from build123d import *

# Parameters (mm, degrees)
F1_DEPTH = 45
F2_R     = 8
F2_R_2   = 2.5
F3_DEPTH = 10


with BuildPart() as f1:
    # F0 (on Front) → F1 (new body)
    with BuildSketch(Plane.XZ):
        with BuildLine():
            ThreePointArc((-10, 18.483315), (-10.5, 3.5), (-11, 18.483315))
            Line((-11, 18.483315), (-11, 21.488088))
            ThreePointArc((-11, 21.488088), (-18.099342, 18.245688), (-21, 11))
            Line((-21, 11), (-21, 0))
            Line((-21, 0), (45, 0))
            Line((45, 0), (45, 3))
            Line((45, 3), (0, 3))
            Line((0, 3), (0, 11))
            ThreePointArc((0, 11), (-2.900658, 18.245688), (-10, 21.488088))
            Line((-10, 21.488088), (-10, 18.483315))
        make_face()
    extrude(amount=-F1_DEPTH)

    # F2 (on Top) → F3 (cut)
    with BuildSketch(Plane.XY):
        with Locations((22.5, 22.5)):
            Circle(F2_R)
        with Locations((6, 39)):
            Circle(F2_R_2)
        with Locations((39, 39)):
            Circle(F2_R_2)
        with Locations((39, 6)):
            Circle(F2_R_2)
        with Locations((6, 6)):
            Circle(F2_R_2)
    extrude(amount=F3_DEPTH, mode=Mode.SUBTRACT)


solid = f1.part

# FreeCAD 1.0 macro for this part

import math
import FreeCAD as App
import Part
import Sketcher
Q = App.Units.Quantity

doc = App.newDocument("Part")
body = doc.addObject("PartDesign::Body", "Body")

# Sketch on XZ plane
sketch1 = body.newObject("Sketcher::SketchObject", "Sketch")
sketch1.AttachmentSupport = (doc.getObject("XZ_Plane"), [""])
sketch1.MapMode = "FlatFace"
sketch1.addGeometry([
    Part.ArcOfCircle(Part.Circle(App.Vector(-10.5, 11, 0), App.Vector(0, 0, 1), 7.5), math.radians(94), math.radians(446)),  # 0
    Part.LineSegment(App.Vector(-11, 18.5, 0), App.Vector(-11, 21.5, 0)),  # 1
    Part.ArcOfCircle(Part.Circle(App.Vector(-10.5, 11, 0), App.Vector(0, 0, 1), 10.5), math.radians(93), math.radians(180)),  # 2
    Part.LineSegment(App.Vector(-21, 11, 0), App.Vector(-21, 0, 0)),  # 3
    Part.LineSegment(App.Vector(-21, 0, 0), App.Vector(45, 0, 0)),  # 4
    Part.LineSegment(App.Vector(45, 0, 0), App.Vector(45, 3, 0)),  # 5
    Part.LineSegment(App.Vector(45, 3, 0), App.Vector(0, 3, 0)),  # 6
    Part.LineSegment(App.Vector(0, 3, 0), App.Vector(0, 11, 0)),  # 7
    Part.ArcOfCircle(Part.Circle(App.Vector(-10.5, 11, 0), App.Vector(0, 0, 1), 10.5), math.radians(0), math.radians(87)),  # 8
    Part.LineSegment(App.Vector(-10, 21.5, 0), App.Vector(-10, 18.5, 0)),  # 9
], False)
sketch1.addConstraint([
    Sketcher.Constraint("Coincident", 0, 1, 1, 1),
    Sketcher.Constraint("Coincident", 1, 2, 2, 1),
    Sketcher.Constraint("Tangent", 2, 2, 3, 1),
    Sketcher.Constraint("Coincident", 3, 2, 4, 1),
    Sketcher.Constraint("Coincident", 4, 2, 5, 1),
    Sketcher.Constraint("Coincident", 5, 2, 6, 1),
    Sketcher.Constraint("Coincident", 6, 2, 7, 1),
    Sketcher.Constraint("Tangent", 7, 2, 8, 1),
    Sketcher.Constraint("Coincident", 8, 2, 9, 1),
    Sketcher.Constraint("Coincident", 9, 2, 0, 2),
    Sketcher.Constraint("Vertical", 1),
    Sketcher.Constraint("Vertical", 3),
    Sketcher.Constraint("Horizontal", 4),
    Sketcher.Constraint("Vertical", 5),
    Sketcher.Constraint("Horizontal", 6),
    Sketcher.Constraint("Vertical", 7),
    Sketcher.Constraint("Vertical", 9),
    Sketcher.Constraint("Coincident", 2, 3, 0, 3),
    Sketcher.Constraint("Coincident", 8, 3, 0, 3),
    Sketcher.Constraint("Equal", 2, 8),
    Sketcher.Constraint("PointOnObject", 3, 2, -1),
    Sketcher.Constraint("PointOnObject", 6, 2, -2),
    Sketcher.Constraint("Horizontal", 1, 2, 8, 2),
    Sketcher.Constraint("Radius", 0, Q("7.5 mm")),
    Sketcher.Constraint("Radius", 2, Q("10.5 mm")),
    Sketcher.Constraint("DistanceX", 4, 1, 4, 2, Q("66 mm")),
    Sketcher.Constraint("DistanceY", 3, 2, 3, 1, Q("11 mm")),
    Sketcher.Constraint("DistanceY", 5, 1, 5, 2, Q("3 mm")),
    Sketcher.Constraint("DistanceX", 0, 1, -1, 1, Q("11 mm")),
])
pad1 = body.newObject("PartDesign::Pad", "Pad")
pad1.Profile = sketch1
pad1.Length = 45
pad1.Reversed = True

# Sketch on XY plane
sketch2 = body.newObject("Sketcher::SketchObject", "Sketch001")
sketch2.AttachmentSupport = (doc.getObject("XY_Plane"), [""])
sketch2.MapMode = "FlatFace"
sketch2.addGeometry([
    Part.Circle(App.Vector(22.5, 22.5, 0), App.Vector(0, 0, 1), 8),  # 0
    Part.Circle(App.Vector(6, 39, 0), App.Vector(0, 0, 1), 2.5),  # 1
    Part.Circle(App.Vector(39, 39, 0), App.Vector(0, 0, 1), 2.5),  # 2
    Part.Circle(App.Vector(39, 6, 0), App.Vector(0, 0, 1), 2.5),  # 3
    Part.Circle(App.Vector(6, 6, 0), App.Vector(0, 0, 1), 2.5),  # 4
], False)
sketch2.addConstraint([
    Sketcher.Constraint("Equal", 1, 2),
    Sketcher.Constraint("Equal", 2, 3),
    Sketcher.Constraint("Equal", 3, 4),
    Sketcher.Constraint("Horizontal", 1, 3, 2, 3),
    Sketcher.Constraint("Horizontal", 3, 3, 4, 3),
    Sketcher.Constraint("Vertical", 2, 3, 3, 3),
    Sketcher.Constraint("Vertical", 1, 3, 4, 3),
    Sketcher.Constraint("Diameter", 0, Q("16 mm")),
    Sketcher.Constraint("Diameter", 1, Q("5 mm")),
    Sketcher.Constraint("DistanceX", -1, 1, 1, 3, Q("6 mm")),
    Sketcher.Constraint("DistanceY", -1, 1, 1, 3, Q("39 mm")),
    Sketcher.Constraint("DistanceX", -1, 1, 2, 3, Q("39 mm")),
    Sketcher.Constraint("DistanceY", -1, 1, 3, 3, Q("6 mm")),
    Sketcher.Constraint("DistanceX", -1, 1, 0, 3, Q("22.5 mm")),
    Sketcher.Constraint("DistanceY", -1, 1, 0, 3, Q("22.5 mm")),
])
pocket1 = body.newObject("PartDesign::Pocket", "Pocket")
pocket1.Profile = sketch2
pocket1.Length = 10
pocket1.Reversed = True

doc.recompute()
